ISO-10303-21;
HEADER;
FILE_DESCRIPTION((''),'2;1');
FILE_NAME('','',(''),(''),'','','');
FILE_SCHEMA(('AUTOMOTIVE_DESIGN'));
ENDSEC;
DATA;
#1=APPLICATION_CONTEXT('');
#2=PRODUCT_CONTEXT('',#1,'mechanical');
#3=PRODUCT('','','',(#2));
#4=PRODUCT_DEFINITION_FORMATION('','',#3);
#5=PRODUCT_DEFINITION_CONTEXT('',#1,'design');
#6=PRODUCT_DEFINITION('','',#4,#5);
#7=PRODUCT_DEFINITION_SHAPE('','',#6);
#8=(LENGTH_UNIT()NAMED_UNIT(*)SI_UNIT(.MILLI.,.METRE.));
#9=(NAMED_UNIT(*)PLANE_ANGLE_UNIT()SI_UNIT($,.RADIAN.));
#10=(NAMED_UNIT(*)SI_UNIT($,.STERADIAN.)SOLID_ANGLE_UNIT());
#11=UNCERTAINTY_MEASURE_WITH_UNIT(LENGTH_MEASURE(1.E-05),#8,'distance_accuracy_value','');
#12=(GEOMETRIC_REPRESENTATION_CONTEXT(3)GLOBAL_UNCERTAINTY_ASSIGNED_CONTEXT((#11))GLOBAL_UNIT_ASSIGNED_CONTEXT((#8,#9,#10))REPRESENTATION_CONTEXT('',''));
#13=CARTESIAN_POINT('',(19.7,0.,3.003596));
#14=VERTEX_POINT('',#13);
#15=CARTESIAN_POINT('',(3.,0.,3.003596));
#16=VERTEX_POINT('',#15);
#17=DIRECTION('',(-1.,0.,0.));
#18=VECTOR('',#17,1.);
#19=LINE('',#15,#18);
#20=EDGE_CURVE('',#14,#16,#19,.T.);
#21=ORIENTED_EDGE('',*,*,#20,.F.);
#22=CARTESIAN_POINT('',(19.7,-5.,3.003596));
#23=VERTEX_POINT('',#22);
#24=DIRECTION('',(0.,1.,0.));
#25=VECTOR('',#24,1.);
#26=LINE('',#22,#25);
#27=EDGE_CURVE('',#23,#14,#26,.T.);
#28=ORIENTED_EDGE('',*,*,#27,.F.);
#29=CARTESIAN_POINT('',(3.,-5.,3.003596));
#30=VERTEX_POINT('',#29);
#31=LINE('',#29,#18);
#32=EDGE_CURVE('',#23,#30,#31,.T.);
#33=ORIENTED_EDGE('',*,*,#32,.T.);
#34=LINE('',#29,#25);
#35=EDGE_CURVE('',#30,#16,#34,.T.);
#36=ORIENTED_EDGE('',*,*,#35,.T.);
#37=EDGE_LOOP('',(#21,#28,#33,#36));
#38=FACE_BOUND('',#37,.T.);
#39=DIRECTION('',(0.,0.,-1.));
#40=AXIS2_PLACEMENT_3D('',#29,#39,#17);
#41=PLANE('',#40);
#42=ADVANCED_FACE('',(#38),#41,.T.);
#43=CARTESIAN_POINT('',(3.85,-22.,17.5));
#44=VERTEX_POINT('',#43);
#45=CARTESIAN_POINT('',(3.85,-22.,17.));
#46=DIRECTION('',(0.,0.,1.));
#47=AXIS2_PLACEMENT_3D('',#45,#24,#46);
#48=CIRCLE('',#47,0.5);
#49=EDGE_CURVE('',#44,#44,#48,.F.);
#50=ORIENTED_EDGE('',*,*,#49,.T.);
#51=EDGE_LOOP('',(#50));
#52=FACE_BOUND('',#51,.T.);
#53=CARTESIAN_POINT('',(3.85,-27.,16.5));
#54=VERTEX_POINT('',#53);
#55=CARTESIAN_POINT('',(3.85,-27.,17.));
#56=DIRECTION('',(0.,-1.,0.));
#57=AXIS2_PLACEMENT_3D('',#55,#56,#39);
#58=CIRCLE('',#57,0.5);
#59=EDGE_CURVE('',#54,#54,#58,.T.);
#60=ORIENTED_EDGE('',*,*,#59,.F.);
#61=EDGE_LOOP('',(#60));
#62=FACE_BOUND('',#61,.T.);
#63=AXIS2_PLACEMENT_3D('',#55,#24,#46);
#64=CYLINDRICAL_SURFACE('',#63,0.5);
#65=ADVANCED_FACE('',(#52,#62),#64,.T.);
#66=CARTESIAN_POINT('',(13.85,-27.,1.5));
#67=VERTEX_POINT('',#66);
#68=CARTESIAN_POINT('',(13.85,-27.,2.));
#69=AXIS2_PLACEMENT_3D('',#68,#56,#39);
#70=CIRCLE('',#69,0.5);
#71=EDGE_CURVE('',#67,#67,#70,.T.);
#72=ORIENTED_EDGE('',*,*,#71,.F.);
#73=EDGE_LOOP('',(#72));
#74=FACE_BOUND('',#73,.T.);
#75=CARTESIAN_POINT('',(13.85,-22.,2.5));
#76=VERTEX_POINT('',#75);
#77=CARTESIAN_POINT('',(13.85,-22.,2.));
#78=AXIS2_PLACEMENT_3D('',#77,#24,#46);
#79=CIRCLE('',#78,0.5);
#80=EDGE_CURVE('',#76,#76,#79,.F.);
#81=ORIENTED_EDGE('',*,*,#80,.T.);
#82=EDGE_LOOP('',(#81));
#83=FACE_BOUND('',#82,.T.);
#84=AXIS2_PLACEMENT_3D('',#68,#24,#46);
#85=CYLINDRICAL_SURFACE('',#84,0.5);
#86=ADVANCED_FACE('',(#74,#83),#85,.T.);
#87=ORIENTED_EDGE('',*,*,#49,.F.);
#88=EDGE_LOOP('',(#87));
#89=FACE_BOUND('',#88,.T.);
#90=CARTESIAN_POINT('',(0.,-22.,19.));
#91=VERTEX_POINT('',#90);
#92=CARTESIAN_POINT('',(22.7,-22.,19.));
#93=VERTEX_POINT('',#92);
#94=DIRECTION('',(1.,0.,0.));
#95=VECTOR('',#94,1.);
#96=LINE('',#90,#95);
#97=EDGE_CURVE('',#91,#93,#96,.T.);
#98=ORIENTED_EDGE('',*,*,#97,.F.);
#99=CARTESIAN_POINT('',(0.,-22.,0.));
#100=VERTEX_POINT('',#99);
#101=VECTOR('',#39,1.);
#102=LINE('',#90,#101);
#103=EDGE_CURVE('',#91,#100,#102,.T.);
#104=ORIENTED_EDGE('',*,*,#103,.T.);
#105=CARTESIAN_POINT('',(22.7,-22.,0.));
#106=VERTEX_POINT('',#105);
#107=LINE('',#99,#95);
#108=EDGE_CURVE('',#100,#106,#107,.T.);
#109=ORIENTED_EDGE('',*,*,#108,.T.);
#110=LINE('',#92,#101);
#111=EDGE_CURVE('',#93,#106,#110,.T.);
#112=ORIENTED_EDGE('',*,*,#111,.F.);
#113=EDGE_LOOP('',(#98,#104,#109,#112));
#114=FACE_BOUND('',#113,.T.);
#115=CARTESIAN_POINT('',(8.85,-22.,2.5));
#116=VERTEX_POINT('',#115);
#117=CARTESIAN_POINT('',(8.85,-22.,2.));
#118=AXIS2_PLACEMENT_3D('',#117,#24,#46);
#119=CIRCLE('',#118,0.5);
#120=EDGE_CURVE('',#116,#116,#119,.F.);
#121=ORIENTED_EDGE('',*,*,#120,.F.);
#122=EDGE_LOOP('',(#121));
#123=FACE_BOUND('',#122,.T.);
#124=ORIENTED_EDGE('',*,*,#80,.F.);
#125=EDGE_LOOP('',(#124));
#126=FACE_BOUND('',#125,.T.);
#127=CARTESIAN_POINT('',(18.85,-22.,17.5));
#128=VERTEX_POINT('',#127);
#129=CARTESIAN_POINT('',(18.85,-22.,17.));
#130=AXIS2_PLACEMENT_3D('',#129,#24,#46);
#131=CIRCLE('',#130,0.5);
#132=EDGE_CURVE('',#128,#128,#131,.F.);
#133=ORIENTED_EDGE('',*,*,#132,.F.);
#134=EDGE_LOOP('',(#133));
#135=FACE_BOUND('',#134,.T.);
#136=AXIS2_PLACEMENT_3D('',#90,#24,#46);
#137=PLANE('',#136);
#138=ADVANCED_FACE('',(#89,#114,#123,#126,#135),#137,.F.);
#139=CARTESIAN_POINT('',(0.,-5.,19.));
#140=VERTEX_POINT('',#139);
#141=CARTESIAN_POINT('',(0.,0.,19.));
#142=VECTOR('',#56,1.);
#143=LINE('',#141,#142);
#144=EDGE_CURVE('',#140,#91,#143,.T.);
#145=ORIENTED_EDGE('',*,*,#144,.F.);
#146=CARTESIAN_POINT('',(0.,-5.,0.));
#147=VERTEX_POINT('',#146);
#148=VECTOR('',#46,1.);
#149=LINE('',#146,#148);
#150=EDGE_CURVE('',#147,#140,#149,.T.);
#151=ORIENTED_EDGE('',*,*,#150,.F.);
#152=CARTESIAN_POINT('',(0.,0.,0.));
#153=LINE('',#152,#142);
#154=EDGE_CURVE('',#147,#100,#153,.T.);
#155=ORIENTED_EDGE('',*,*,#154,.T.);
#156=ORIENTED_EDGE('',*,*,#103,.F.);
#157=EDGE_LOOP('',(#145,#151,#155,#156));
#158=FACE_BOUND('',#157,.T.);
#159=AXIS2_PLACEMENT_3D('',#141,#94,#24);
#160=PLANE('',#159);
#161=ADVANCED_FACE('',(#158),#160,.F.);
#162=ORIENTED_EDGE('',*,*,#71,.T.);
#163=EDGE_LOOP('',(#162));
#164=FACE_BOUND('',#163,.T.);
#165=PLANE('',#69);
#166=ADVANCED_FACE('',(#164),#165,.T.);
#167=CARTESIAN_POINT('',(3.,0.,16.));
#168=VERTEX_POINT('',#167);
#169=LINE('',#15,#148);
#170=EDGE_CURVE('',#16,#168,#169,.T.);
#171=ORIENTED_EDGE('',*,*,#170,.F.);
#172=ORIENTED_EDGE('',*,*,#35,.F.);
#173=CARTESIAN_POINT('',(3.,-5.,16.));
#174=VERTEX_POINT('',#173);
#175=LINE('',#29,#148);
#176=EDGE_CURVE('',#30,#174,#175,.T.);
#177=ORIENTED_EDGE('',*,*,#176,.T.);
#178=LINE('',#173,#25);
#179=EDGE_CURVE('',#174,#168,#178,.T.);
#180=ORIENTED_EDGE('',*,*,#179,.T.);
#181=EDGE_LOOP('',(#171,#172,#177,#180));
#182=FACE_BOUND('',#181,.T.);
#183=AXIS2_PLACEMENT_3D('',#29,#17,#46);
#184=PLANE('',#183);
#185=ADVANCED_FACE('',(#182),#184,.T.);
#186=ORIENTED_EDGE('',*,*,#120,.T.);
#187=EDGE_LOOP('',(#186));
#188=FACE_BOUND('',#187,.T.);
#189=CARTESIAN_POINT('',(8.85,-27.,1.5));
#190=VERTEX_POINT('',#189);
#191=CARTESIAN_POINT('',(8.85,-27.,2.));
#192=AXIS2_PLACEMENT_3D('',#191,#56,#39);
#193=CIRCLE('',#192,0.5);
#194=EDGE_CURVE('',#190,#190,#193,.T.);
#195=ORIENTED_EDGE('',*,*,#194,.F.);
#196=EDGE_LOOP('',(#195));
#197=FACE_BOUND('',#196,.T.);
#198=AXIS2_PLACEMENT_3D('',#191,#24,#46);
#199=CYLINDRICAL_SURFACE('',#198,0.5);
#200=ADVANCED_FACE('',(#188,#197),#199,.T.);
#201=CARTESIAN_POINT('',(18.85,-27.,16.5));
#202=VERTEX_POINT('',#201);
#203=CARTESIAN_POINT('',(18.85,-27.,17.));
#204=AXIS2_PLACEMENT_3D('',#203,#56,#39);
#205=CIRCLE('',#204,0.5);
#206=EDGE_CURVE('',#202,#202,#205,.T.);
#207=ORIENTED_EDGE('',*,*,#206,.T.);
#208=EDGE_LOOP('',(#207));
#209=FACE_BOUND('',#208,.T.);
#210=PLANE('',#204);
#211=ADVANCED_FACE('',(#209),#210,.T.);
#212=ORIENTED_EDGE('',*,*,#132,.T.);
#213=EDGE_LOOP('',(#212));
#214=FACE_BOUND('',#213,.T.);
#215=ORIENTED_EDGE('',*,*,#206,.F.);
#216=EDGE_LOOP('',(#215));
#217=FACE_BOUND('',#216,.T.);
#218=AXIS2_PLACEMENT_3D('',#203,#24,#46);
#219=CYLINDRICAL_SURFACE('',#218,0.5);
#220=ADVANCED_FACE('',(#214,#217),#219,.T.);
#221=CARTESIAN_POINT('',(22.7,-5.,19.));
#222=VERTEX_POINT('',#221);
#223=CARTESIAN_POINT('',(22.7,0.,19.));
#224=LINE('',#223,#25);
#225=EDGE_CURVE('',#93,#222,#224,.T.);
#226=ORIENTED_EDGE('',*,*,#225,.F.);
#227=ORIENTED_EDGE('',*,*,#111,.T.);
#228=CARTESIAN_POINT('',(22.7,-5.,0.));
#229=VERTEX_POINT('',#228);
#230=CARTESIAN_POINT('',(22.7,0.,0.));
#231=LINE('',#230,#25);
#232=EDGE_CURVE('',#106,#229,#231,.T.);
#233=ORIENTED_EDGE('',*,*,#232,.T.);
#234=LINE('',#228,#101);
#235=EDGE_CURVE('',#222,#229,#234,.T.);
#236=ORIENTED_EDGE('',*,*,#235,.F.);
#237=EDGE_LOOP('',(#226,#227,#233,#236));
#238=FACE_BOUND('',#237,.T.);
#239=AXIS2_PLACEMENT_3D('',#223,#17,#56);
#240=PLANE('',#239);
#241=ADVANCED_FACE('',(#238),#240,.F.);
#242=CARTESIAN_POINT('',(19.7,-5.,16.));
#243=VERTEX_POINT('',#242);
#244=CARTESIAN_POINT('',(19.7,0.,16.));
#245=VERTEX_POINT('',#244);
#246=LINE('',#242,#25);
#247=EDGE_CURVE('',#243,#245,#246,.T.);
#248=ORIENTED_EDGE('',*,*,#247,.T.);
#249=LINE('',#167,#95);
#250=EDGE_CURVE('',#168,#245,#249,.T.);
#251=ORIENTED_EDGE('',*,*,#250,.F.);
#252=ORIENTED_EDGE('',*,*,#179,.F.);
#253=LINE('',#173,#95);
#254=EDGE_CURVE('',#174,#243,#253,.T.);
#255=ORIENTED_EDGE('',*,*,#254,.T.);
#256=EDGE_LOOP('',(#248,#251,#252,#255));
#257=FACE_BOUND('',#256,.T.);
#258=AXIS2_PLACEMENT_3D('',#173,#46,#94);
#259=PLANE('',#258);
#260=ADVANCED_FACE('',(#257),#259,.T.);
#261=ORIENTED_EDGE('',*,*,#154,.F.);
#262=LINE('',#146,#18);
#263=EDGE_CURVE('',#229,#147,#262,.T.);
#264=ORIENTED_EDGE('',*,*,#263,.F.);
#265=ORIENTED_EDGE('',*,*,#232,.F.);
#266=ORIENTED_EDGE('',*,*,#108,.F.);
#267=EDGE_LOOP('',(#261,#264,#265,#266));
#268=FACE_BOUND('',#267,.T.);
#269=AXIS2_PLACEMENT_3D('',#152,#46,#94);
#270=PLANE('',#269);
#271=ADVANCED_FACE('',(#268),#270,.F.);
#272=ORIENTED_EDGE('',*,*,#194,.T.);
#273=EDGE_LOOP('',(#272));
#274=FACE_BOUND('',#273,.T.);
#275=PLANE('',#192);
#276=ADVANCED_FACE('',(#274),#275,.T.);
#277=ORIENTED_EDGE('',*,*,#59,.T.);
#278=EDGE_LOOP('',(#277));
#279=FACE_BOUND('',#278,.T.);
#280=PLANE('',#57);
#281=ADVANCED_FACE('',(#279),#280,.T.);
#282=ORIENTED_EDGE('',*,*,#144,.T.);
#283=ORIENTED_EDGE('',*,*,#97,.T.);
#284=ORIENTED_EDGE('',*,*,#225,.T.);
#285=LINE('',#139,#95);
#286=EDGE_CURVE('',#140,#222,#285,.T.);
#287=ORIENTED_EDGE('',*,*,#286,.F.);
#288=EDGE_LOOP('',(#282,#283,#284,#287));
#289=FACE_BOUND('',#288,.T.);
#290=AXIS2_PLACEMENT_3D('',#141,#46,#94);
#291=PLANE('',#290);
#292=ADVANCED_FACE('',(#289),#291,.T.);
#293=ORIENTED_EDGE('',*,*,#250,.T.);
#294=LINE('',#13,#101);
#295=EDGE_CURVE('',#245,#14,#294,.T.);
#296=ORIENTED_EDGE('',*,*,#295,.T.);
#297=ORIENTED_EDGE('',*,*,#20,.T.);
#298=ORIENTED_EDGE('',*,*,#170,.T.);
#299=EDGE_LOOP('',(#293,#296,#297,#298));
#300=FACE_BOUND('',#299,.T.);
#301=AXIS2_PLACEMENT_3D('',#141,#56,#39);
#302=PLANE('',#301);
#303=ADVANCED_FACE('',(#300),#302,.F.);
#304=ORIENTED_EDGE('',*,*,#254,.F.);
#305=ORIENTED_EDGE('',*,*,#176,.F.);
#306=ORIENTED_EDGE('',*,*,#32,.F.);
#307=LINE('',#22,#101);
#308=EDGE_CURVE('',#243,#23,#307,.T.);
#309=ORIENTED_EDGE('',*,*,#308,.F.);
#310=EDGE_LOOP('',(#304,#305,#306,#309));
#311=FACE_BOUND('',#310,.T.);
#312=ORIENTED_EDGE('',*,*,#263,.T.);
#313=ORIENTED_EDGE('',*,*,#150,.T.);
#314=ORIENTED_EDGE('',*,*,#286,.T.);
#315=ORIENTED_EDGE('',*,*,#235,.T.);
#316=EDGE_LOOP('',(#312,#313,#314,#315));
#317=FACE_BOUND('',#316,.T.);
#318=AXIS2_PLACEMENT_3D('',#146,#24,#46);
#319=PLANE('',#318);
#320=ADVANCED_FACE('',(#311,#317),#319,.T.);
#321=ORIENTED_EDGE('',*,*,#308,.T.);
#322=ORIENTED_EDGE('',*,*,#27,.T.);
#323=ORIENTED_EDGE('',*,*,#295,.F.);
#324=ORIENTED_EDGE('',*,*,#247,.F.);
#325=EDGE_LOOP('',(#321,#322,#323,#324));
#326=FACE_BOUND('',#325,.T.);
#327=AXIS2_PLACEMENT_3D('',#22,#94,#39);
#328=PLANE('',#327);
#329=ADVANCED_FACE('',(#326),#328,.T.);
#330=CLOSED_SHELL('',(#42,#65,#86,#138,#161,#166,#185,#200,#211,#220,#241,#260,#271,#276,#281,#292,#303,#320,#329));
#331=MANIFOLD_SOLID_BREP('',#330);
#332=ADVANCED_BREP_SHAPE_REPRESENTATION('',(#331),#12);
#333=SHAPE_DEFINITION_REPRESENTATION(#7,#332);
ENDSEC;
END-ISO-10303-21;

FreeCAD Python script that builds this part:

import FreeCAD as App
import Part
import Sketcher

V = App.Vector

doc = App.newDocument("Part")
body = doc.addObject("PartDesign::Body", "Body")

# Sketch on XY plane
sketch1 = body.newObject("Sketcher::SketchObject", "Sketch")
sketch1.AttachmentSupport = (doc.getObject("XY_Plane"), [""])
sketch1.MapMode = "FlatFace"
sketch1.addGeometry(Part.LineSegment(V(0, 0, 0), V(0, -22, 0)), False)
sketch1.addGeometry(Part.LineSegment(V(0, -22, 0), V(23, -22, 0)), False)
sketch1.addGeometry(Part.LineSegment(V(23, -22, 0), V(23, 0, 0)), False)
sketch1.addGeometry(Part.LineSegment(V(23, 0, 0), V(0, 0, 0)), False)
sketch1.addConstraint(Sketcher.Constraint("Coincident", 0, 2, 1, 1))
sketch1.addConstraint(Sketcher.Constraint("Coincident", 1, 2, 2, 1))
sketch1.addConstraint(Sketcher.Constraint("Coincident", 2, 2, 3, 1))
sketch1.addConstraint(Sketcher.Constraint("Coincident", 3, 2, 0, 1))
sketch1.addConstraint(Sketcher.Constraint("Vertical", 0))
sketch1.addConstraint(Sketcher.Constraint("Horizontal", 1))
sketch1.addConstraint(Sketcher.Constraint("Vertical", 2))
sketch1.addConstraint(Sketcher.Constraint("Horizontal", 3))
sketch1.addConstraint(Sketcher.Constraint("Coincident", 3, 2, -1, 1))
sketch1.addConstraint(Sketcher.Constraint("DistanceY", 0, 2, 0, 1, 22.0))
sketch1.addConstraint(Sketcher.Constraint("DistanceX", 1, 1, 1, 2, 22.7))
pad1 = body.newObject("PartDesign::Pad", "Pad")
pad1.Profile = sketch1
pad1.Length = 19

# Sketch on XZ plane
sketch2 = body.newObject("Sketcher::SketchObject", "Sketch001")
sketch2.AttachmentSupport = (doc.getObject("XZ_Plane"), [""])
sketch2.MapMode = "FlatFace"
sketch2.AttachmentOffset = App.Placement(V(0, 0, 22), App.Rotation())
sketch2.addGeometry(Part.Circle(V(18.9, 17, 0), V(0, 0, 1), 0.5), False)
sketch2.addGeometry(Part.Circle(V(3.9, 17, 0), V(0, 0, 1), 0.5), False)
sketch2.addGeometry(Part.Circle(V(8.8, 2, 0), V(0, 0, 1), 0.5), False)
sketch2.addGeometry(Part.Circle(V(13.8, 2, 0), V(0, 0, 1), 0.5), False)
sketch2.addConstraint(Sketcher.Constraint("Equal", 0, 1))
sketch2.addConstraint(Sketcher.Constraint("Equal", 1, 2))
sketch2.addConstraint(Sketcher.Constraint("Equal", 2, 3))
sketch2.addConstraint(Sketcher.Constraint("Horizontal", 0, 3, 1, 3))
sketch2.addConstraint(Sketcher.Constraint("Horizontal", 2, 3, 3, 3))
sketch2.addConstraint(Sketcher.Constraint("Diameter", 0, 1.0))
sketch2.addConstraint(Sketcher.Constraint("DistanceY", -1, 1, 0, 3, 17.0))
sketch2.addConstraint(Sketcher.Constraint("DistanceY", -1, 1, 2, 3, 2.0))
sketch2.addConstraint(Sketcher.Constraint("DistanceX", 1, 3, 0, 3, 15.0))
sketch2.addConstraint(Sketcher.Constraint("DistanceX", 1, 3, 2, 3, 5.0))
sketch2.addConstraint(Sketcher.Constraint("DistanceX", 2, 3, 3, 3, 5.0))
sketch2.addConstraint(Sketcher.Constraint("DistanceX", -1, 1, 0, 3, 18.85))
pad2 = body.newObject("PartDesign::Pad", "Pad001")
pad2.Profile = sketch2
pad2.Length = 5

# Sketch on XZ plane
sketch3 = body.newObject("Sketcher::SketchObject", "Sketch002")
sketch3.AttachmentSupport = (doc.getObject("XZ_Plane"), [""])
sketch3.MapMode = "FlatFace"
sketch3.addGeometry(Part.LineSegment(V(0, 0, 0), V(0, 19, 0)), False)
sketch3.addGeometry(Part.LineSegment(V(0, 19, 0), V(23, 19, 0)), False)
sketch3.addGeometry(Part.LineSegment(V(23, 19, 0), V(23, 0, 0)), False)
sketch3.addGeometry(Part.LineSegment(V(23, 0, 0), V(0, 0, 0)), False)
sketch3.addGeometry(Part.LineSegment(V(20, 16, 0), V(3, 16, 0)), False)
sketch3.addGeometry(Part.LineSegment(V(3, 16, 0), V(3, 3, 0)), False)
sketch3.addGeometry(Part.LineSegment(V(3, 3, 0), V(20, 3, 0)), False)
sketch3.addGeometry(Part.LineSegment(V(20, 3, 0), V(20, 16, 0)), False)
sketch3.addConstraint(Sketcher.Constraint("Coincident", 0, 2, 1, 1))
sketch3.addConstraint(Sketcher.Constraint("Coincident", 1, 2, 2, 1))
sketch3.addConstraint(Sketcher.Constraint("Coincident", 2, 2, 3, 1))
sketch3.addConstraint(Sketcher.Constraint("Coincident", 3, 2, 0, 1))
sketch3.addConstraint(Sketcher.Constraint("Coincident", 4, 2, 5, 1))
sketch3.addConstraint(Sketcher.Constraint("Coincident", 5, 2, 6, 1))
sketch3.addConstraint(Sketcher.Constraint("Coincident", 6, 2, 7, 1))
sketch3.addConstraint(Sketcher.Constraint("Coincident", 7, 2, 4, 1))
sketch3.addConstraint(Sketcher.Constraint("Vertical", 0))
sketch3.addConstraint(Sketcher.Constraint("Horizontal", 1))
sketch3.addConstraint(Sketcher.Constraint("Vertical", 2))
sketch3.addConstraint(Sketcher.Constraint("Horizontal", 3))
sketch3.addConstraint(Sketcher.Constraint("Horizontal", 4))
sketch3.addConstraint(Sketcher.Constraint("Vertical", 5))
sketch3.addConstraint(Sketcher.Constraint("Horizontal", 6))
sketch3.addConstraint(Sketcher.Constraint("Vertical", 7))
sketch3.addConstraint(Sketcher.Constraint("Coincident", 3, 2, -1, 1))
sketch3.addConstraint(Sketcher.Constraint("DistanceY", 0, 1, 0, 2, 19.0))
sketch3.addConstraint(Sketcher.Constraint("DistanceX", 1, 1, 1, 2, 22.7))
sketch3.addConstraint(Sketcher.Constraint("DistanceX", 4, 2, 4, 1, 16.7))
sketch3.addConstraint(Sketcher.Constraint("DistanceX", -1, 1, 4, 2, 3.0))
sketch3.addConstraint(Sketcher.Constraint("DistanceY", -1, 1, 4, 2, 16.0))
sketch3.addConstraint(Sketcher.Constraint("DistanceY", 5, 2, 5, 1, 12.996404))
pocket1 = body.newObject("PartDesign::Pocket", "Pocket")
pocket1.Profile = sketch3
pocket1.Length = 5
pocket1.Reversed = True

doc.recompute()
